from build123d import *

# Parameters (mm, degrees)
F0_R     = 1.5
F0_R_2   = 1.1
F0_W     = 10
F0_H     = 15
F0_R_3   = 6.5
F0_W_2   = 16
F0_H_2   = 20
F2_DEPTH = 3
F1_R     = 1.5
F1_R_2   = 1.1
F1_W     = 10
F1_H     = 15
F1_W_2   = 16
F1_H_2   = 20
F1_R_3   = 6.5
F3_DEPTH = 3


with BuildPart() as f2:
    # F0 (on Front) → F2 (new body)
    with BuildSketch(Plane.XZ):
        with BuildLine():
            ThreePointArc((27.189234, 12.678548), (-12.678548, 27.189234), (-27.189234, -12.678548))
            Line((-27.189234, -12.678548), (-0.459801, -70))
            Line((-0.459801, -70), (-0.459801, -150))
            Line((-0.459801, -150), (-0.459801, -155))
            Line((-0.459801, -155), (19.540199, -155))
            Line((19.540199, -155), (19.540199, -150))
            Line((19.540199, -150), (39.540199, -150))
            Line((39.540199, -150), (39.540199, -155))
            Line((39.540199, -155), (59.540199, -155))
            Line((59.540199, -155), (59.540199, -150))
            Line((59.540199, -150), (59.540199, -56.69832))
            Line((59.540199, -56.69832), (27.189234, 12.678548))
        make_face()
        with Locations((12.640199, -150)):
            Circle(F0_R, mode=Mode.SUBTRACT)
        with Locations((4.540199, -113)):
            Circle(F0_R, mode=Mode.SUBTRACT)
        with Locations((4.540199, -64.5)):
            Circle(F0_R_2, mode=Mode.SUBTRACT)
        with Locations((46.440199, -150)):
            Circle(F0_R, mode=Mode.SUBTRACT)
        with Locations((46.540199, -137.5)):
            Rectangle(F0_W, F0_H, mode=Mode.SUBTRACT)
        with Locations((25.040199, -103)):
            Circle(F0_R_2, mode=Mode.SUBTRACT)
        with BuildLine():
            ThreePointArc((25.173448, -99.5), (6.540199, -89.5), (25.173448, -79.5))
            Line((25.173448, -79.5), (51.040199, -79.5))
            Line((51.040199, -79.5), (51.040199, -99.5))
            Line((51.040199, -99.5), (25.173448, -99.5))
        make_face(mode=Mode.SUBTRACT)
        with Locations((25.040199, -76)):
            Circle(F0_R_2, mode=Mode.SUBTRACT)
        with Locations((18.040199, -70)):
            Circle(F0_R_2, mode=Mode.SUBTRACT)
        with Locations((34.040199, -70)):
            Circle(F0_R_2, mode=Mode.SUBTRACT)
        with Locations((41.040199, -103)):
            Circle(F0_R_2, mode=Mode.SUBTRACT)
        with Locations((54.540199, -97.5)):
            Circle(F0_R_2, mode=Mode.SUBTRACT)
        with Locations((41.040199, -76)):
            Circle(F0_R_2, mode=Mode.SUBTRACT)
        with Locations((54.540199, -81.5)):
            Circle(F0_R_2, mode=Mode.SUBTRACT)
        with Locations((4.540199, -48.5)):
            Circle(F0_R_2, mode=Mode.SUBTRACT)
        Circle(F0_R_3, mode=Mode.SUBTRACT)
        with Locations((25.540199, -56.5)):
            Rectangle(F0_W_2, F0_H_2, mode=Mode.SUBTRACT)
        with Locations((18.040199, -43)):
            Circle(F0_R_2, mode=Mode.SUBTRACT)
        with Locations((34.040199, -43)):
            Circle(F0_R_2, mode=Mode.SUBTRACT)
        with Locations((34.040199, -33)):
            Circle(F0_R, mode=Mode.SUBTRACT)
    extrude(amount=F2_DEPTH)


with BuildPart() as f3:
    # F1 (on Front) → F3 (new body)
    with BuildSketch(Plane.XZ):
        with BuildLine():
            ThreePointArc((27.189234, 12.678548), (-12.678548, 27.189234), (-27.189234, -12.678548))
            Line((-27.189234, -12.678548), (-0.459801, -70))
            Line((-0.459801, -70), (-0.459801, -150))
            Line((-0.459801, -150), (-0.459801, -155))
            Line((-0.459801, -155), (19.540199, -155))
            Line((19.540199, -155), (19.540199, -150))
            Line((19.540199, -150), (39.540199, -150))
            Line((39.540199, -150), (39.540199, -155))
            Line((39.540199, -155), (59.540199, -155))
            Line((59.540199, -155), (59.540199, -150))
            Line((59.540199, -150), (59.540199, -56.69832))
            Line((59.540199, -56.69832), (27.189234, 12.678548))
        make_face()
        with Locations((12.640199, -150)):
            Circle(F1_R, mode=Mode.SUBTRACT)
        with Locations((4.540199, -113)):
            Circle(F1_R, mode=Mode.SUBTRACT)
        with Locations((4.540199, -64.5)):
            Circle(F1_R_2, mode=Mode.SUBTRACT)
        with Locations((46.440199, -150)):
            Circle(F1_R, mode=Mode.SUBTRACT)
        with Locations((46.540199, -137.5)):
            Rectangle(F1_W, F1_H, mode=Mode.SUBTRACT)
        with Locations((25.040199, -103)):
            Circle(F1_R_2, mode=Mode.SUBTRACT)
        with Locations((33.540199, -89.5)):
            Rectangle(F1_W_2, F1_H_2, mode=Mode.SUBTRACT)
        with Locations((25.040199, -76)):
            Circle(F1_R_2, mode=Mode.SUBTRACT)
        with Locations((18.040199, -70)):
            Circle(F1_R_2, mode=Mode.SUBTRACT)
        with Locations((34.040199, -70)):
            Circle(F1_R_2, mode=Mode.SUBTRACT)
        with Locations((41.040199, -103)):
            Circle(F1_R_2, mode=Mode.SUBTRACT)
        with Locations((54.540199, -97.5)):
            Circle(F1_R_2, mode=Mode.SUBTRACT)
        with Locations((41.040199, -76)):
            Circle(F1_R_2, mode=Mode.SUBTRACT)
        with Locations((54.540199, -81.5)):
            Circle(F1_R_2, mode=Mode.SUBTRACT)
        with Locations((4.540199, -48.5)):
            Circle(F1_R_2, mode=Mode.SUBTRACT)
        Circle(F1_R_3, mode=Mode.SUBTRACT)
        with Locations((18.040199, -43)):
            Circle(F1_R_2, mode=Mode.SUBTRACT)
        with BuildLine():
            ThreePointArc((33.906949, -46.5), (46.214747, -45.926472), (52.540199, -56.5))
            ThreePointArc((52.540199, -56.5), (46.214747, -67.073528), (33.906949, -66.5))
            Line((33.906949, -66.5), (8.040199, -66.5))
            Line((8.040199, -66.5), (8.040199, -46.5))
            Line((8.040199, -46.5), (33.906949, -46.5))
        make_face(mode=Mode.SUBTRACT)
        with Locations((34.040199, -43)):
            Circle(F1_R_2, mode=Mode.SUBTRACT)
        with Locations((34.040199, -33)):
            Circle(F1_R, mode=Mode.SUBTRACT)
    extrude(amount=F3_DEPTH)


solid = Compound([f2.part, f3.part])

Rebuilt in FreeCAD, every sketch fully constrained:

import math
import FreeCAD as App
import Part
import Sketcher
from FreeCAD import Vector
Q = App.Units.Quantity


def add_polygon(sketch, points):
    """Adds a closed chain of lines whose ends are joined by coincident constraints."""
    first, n = sketch.GeometryCount, len(points)
    for a, b in zip(points, points[1:] + points[:1]):
        sketch.addGeometry(Part.LineSegment(App.Vector(*a, 0), App.Vector(*b, 0)), False)
    for i in range(n):
        sketch.addConstraint(Sketcher.Constraint("Coincident", first + i, 2, first + (i + 1) % n, 1))

doc = App.newDocument("Part")
body = doc.addObject("PartDesign::Body", "Body")

sketch1 = body.newObject("Sketcher::SketchObject", "Sketch")
sketch1.AttachmentSupport = (doc.getObject("XZ_Plane"), [""])
sketch1.MapMode = "FlatFace"
sketch1.addGeometry(Part.ArcOfCircle(Part.Circle(Vector(0, 0, 0), Vector(0, 0, 1), 30), math.radians(25), math.radians(205)), False)
sketch1.addGeometry(Part.LineSegment(Vector(-27.2, -12.7, 0), Vector(-0.5, -70, 0)), False)
sketch1.addGeometry(Part.LineSegment(Vector(-0.5, -70, 0), Vector(-0.5, -155, 0)), False)
sketch1.addGeometry(Part.LineSegment(Vector(-0.5, -155, 0), Vector(19.5, -155, 0)), False)
sketch1.addGeometry(Part.LineSegment(Vector(19.5, -155, 0), Vector(19.5, -150, 0)), False)
sketch1.addGeometry(Part.LineSegment(Vector(19.5, -150, 0), Vector(39.5, -150, 0)), False)
sketch1.addGeometry(Part.LineSegment(Vector(39.5, -150, 0), Vector(39.5, -155, 0)), False)
sketch1.addGeometry(Part.LineSegment(Vector(39.5, -155, 0), Vector(59.5, -155, 0)), False)
sketch1.addGeometry(Part.LineSegment(Vector(59.5, -155, 0), Vector(59.5, -56.7, 0)), False)
sketch1.addGeometry(Part.LineSegment(Vector(59.5, -56.7, 0), Vector(27.2, 12.7, 0)), False)
sketch1.addGeometry(Part.Circle(Vector(4.5, -113, 0), Vector(0, 0, 1), 1.5), False)
sketch1.addGeometry(Part.Circle(Vector(12.6, -150, 0), Vector(0, 0, 1), 1.5), False)
sketch1.addGeometry(Part.Circle(Vector(46.4, -150, 0), Vector(0, 0, 1), 1.5), False)
add_polygon(sketch1, [(51.5, -145), (41.5, -145), (41.5, -130), (51.5, -130)])
sketch1.addGeometry(Part.Circle(Vector(25, -103, 0), Vector(0, 0, 1), 1.1), False)
sketch1.addGeometry(Part.LineSegment(Vector(51, -99.5, 0), Vector(25.2, -99.5, 0)), False)
sketch1.addGeometry(Part.ArcOfCircle(Part.Circle(Vector(18.5, -89.5, 0), Vector(0, 0, 1), 12), math.radians(56), math.radians(304)), False)
sketch1.addGeometry(Part.LineSegment(Vector(25.2, -79.5, 0), Vector(51, -79.5, 0)), False)
sketch1.addGeometry(Part.LineSegment(Vector(51, -79.5, 0), Vector(51, -99.5, 0)), False)
sketch1.addGeometry(Part.Circle(Vector(25, -76, 0), Vector(0, 0, 1), 1.1), False)
sketch1.addGeometry(Part.Circle(Vector(41, -103, 0), Vector(0, 0, 1), 1.1), False)
sketch1.addGeometry(Part.Circle(Vector(54.5, -97.5, 0), Vector(0, 0, 1), 1.1), False)
sketch1.addGeometry(Part.Circle(Vector(41, -76, 0), Vector(0, 0, 1), 1.1), False)
sketch1.addGeometry(Part.Circle(Vector(54.5, -81.5, 0), Vector(0, 0, 1), 1.1), False)
sketch1.addGeometry(Part.Circle(Vector(4.5, -64.5, 0), Vector(0, 0, 1), 1.1), False)
sketch1.addGeometry(Part.Circle(Vector(4.5, -48.5, 0), Vector(0, 0, 1), 1.1), False)
sketch1.addGeometry(Part.Circle(Vector(18, -70, 0), Vector(0, 0, 1), 1.1), False)
sketch1.addGeometry(Part.Circle(Vector(18, -43, 0), Vector(0, 0, 1), 1.1), False)
sketch1.addGeometry(Part.Circle(Vector(0, 0, 0), Vector(0, 0, 1), 6.5), False)
add_polygon(sketch1, [(33.5, -66.5), (17.5, -66.5), (17.5, -46.5), (33.5, -46.5)])
sketch1.addGeometry(Part.Circle(Vector(34, -70, 0), Vector(0, 0, 1), 1.1), False)
sketch1.addGeometry(Part.Circle(Vector(34, -43, 0), Vector(0, 0, 1), 1.1), False)
sketch1.addGeometry(Part.Circle(Vector(34, -33, 0), Vector(0, 0, 1), 1.5), False)
sketch1.addConstraint([
    Sketcher.Constraint("Tangent", 0, 2, 1, 1),
    Sketcher.Constraint("Coincident", 1, 2, 2, 1),
    Sketcher.Constraint("Coincident", 2, 2, 3, 1),
    Sketcher.Constraint("Coincident", 3, 2, 4, 1),
    Sketcher.Constraint("Coincident", 4, 2, 5, 1),
    Sketcher.Constraint("Coincident", 5, 2, 6, 1),
    Sketcher.Constraint("Coincident", 6, 2, 7, 1),
    Sketcher.Constraint("Coincident", 7, 2, 8, 1),
    Sketcher.Constraint("Coincident", 8, 2, 9, 1),
    Sketcher.Constraint("Tangent", 9, 2, 0, 1),
    Sketcher.Constraint("Coincident", 18, 2, 19, 2),
    Sketcher.Constraint("Coincident", 19, 1, 20, 1),
    Sketcher.Constraint("Coincident", 20, 2, 21, 1),
    Sketcher.Constraint("Coincident", 21, 2, 18, 1),
    Sketcher.Constraint("Vertical", 2),
    Sketcher.Constraint("Horizontal", 3),
    Sketcher.Constraint("Vertical", 4),
    Sketcher.Constraint("Horizontal", 5),
    Sketcher.Constraint("Vertical", 6),
    Sketcher.Constraint("Horizontal", 7),
    Sketcher.Constraint("Vertical", 8),
    Sketcher.Constraint("Horizontal", 13),
    Sketcher.Constraint("Vertical", 14),
    Sketcher.Constraint("Horizontal", 15),
    Sketcher.Constraint("Vertical", 16),
    Sketcher.Constraint("Horizontal", 18),
    Sketcher.Constraint("Horizontal", 20),
    Sketcher.Constraint("Vertical", 21),
    Sketcher.Constraint("Horizontal", 32),
    Sketcher.Constraint("Vertical", 33),
    Sketcher.Constraint("Horizontal", 34),
    Sketcher.Constraint("Vertical", 35),
    Sketcher.Constraint("Coincident", 0, 3, -1, 1),
    Sketcher.Constraint("Coincident", 31, 3, -1, 1),
    Sketcher.Constraint("Equal", 10, 11),
    Sketcher.Constraint("Equal", 11, 12),
    Sketcher.Constraint("Equal", 17, 22),
    Sketcher.Constraint("Equal", 22, 23),
    Sketcher.Constraint("Equal", 23, 24),
    Sketcher.Constraint("Equal", 24, 25),
    Sketcher.Constraint("Equal", 25, 26),
    Sketcher.Constraint("Equal", 26, 27),
    Sketcher.Constraint("Equal", 27, 28),
    Sketcher.Constraint("Equal", 28, 29),
    Sketcher.Constraint("Equal", 29, 30),
    Sketcher.Constraint("Equal", 30, 36),
    Sketcher.Constraint("Equal", 36, 37),
    Sketcher.Constraint("Equal", 12, 38),
    Sketcher.Constraint("Parallel", 1, 9),
    Sketcher.Constraint("Horizontal", 11, 3, 12, 3),
    Sketcher.Constraint("Horizontal", 17, 3, 23, 3),
    Sketcher.Constraint("Horizontal", 22, 3, 25, 3),
    Sketcher.Constraint("Horizontal", 29, 3, 36, 3),
    Sketcher.Constraint("Horizontal", 30, 3, 37, 3),
    Sketcher.Constraint("Horizontal", 36, 3, 1, 2),
    Sketcher.Constraint("Horizontal", 12, 3, 4, 2),
    Sketcher.Constraint("Horizontal", 3, 2, 6, 2),
    Sketcher.Constraint("Vertical", 17, 3, 22, 3),
    Sketcher.Constraint("Vertical", 23, 3, 25, 3),
    Sketcher.Constraint("Vertical", 24, 3, 26, 3),
    Sketcher.Constraint("Vertical", 10, 3, 27, 3),
    Sketcher.Constraint("Vertical", 27, 3, 28, 3),
    Sketcher.Constraint("Vertical", 29, 3, 30, 3),
    Sketcher.Constraint("Vertical", 36, 3, 37, 3),
    Sketcher.Constraint("Vertical", 37, 3, 38, 3),
    Sketcher.Constraint("Vertical", 18, 2, 19, 1),
    Sketcher.Constraint("Equal", 3, 5),
    Sketcher.Constraint("Equal", 5, 7),
    Sketcher.Constraint("Equal", 7, 21),
    Sketcher.Constraint("Equal", 21, 33),
    Sketcher.Constraint("Diameter", 10, Q("3 mm")),
    Sketcher.Constraint("Diameter", 31, Q("13 mm")),
    Sketcher.Constraint("Radius", 0, Q("30 mm")),
    Sketcher.Constraint("Radius", 19, Q("12 mm")),
    Sketcher.Constraint("Diameter", 17, Q("2.2 mm")),
    Sketcher.Constraint("DistanceX", 3, 1, 3, 2, Q("20 mm")),
    Sketcher.Constraint("DistanceX", 13, 2, 13, 1, Q("10 mm")),
    Sketcher.Constraint("DistanceX", 32, 2, 32, 1, Q("16 mm")),
    Sketcher.Constraint("DistanceY", 2, 2, 2, 1, Q("85 mm")),
    Sketcher.Constraint("DistanceY", 4, 1, 4, 2, Q("5 mm")),
    Sketcher.Constraint("DistanceY", 14, 1, 14, 2, Q("15 mm")),
    Sketcher.Constraint("Angle", 1, Q("-64.999999 deg")),
    Sketcher.Constraint("DistanceY", 10, 3, -1, 1, Q("113 mm")),
    Sketcher.Constraint("DistanceY", 11, 3, -1, 1, Q("150 mm")),
    Sketcher.Constraint("DistanceY", 17, 3, -1, 1, Q("103 mm")),
    Sketcher.Constraint("DistanceY", 22, 3, -1, 1, Q("76 mm")),
    Sketcher.Constraint("DistanceY", 30, 3, -1, 1, Q("43 mm")),
    Sketcher.Constraint("DistanceY", 38, 3, -1, 1, Q("33 mm")),
    Sketcher.Constraint("DistanceY", 13, 2, -1, 1, Q("145 mm")),
    Sketcher.Constraint("DistanceX", 10, 3, 19, 3, Q("14 mm")),
    Sketcher.Constraint("DistanceX", 17, 3, 23, 3, Q("16 mm")),
    Sketcher.Constraint("DistanceX", 19, 3, 24, 3, Q("36 mm")),
    Sketcher.Constraint("DistanceY", 24, 3, 19, 3, Q("8 mm")),
    Sketcher.Constraint("DistanceY", 24, 3, 26, 3, Q("16 mm")),
    Sketcher.Constraint("DistanceY", 19, 3, 27, 3, Q("25 mm")),
    Sketcher.Constraint("DistanceY", 27, 3, 28, 3, Q("16 mm")),
    Sketcher.Constraint("DistanceX", 29, 3, 22, 3, Q("7 mm")),
    Sketcher.Constraint("DistanceX", 36, 3, 25, 3, Q("7 mm")),
    Sketcher.Constraint("DistanceX", 1, 2, 27, 3, Q("5 mm")),
    Sketcher.Constraint("DistanceX", 5, 2, 13, 2, Q("2 mm")),
    Sketcher.Constraint("DistanceX", 25, 3, 20, 2, Q("10 mm")),
    Sketcher.Constraint("DistanceX", 27, 3, 32, 2, Q("13 mm")),
    Sketcher.Constraint("DistanceY", 32, 2, 27, 3, Q("2 mm")),
    Sketcher.Constraint("DistanceY", 19, 3, -1, 1, Q("89.5 mm")),
    Sketcher.Constraint("DistanceX", 10, 3, 11, 3, Q("8.1 mm")),
    Sketcher.Constraint("DistanceX", 11, 3, 12, 3, Q("33.8 mm")),
    Sketcher.Constraint("DistanceX", 10, 3, 17, 3, Q("20.5 mm")),
])
pad1 = body.newObject("PartDesign::Pad", "Pad")
pad1.Profile = sketch1
pad1.Length = 3
body2 = doc.addObject("PartDesign::Body", "Body001")

sketch2 = body2.newObject("Sketcher::SketchObject", "Sketch001")
sketch2.AttachmentSupport = (doc.getObject("XZ_Plane001"), [""])
sketch2.MapMode = "FlatFace"
sketch2.addGeometry(Part.ArcOfCircle(Part.Circle(Vector(0, 0, 0), Vector(0, 0, 1), 30), math.radians(25), math.radians(205)), False)
sketch2.addGeometry(Part.LineSegment(Vector(-27.2, -12.7, 0), Vector(-0.5, -70, 0)), False)
sketch2.addGeometry(Part.LineSegment(Vector(-0.5, -70, 0), Vector(-0.5, -155, 0)), False)
sketch2.addGeometry(Part.LineSegment(Vector(-0.5, -155, 0), Vector(19.5, -155, 0)), False)
sketch2.addGeometry(Part.LineSegment(Vector(19.5, -155, 0), Vector(19.5, -150, 0)), False)
sketch2.addGeometry(Part.LineSegment(Vector(19.5, -150, 0), Vector(39.5, -150, 0)), False)
sketch2.addGeometry(Part.LineSegment(Vector(39.5, -150, 0), Vector(39.5, -155, 0)), False)
sketch2.addGeometry(Part.LineSegment(Vector(39.5, -155, 0), Vector(59.5, -155, 0)), False)
sketch2.addGeometry(Part.LineSegment(Vector(59.5, -155, 0), Vector(59.5, -56.7, 0)), False)
sketch2.addGeometry(Part.LineSegment(Vector(59.5, -56.7, 0), Vector(27.2, 12.7, 0)), False)
sketch2.addGeometry(Part.Circle(Vector(4.5, -113, 0), Vector(0, 0, 1), 1.5), False)
sketch2.addGeometry(Part.Circle(Vector(12.6, -150, 0), Vector(0, 0, 1), 1.5), False)
sketch2.addGeometry(Part.Circle(Vector(46.4, -150, 0), Vector(0, 0, 1), 1.5), False)
add_polygon(sketch2, [(51.5, -145), (41.5, -145), (41.5, -130), (51.5, -130)])
sketch2.addGeometry(Part.Circle(Vector(25, -103, 0), Vector(0, 0, 1), 1.1), False)
sketch2.addGeometry(Part.Circle(Vector(25, -76, 0), Vector(0, 0, 1), 1.1), False)
add_polygon(sketch2, [(41.5, -99.5), (25.5, -99.5), (25.5, -79.5), (41.5, -79.5)])
sketch2.addGeometry(Part.Circle(Vector(41, -103, 0), Vector(0, 0, 1), 1.1), False)
sketch2.addGeometry(Part.Circle(Vector(54.5, -97.5, 0), Vector(0, 0, 1), 1.1), False)
sketch2.addGeometry(Part.Circle(Vector(41, -76, 0), Vector(0, 0, 1), 1.1), False)
sketch2.addGeometry(Part.Circle(Vector(54.5, -81.5, 0), Vector(0, 0, 1), 1.1), False)
sketch2.addGeometry(Part.Circle(Vector(4.5, -64.5, 0), Vector(0, 0, 1), 1.1), False)
sketch2.addGeometry(Part.Circle(Vector(4.5, -48.5, 0), Vector(0, 0, 1), 1.1), False)
sketch2.addGeometry(Part.Circle(Vector(18, -70, 0), Vector(0, 0, 1), 1.1), False)
sketch2.addGeometry(Part.Circle(Vector(18, -43, 0), Vector(0, 0, 1), 1.1), False)
sketch2.addGeometry(Part.Circle(Vector(0, 0, 0), Vector(0, 0, 1), 6.5), False)
sketch2.addGeometry(Part.LineSegment(Vector(8, -46.5, 0), Vector(33.9, -46.5, 0)), False)
sketch2.addGeometry(Part.ArcOfCircle(Part.Circle(Vector(40.5, -56.5, 0), Vector(0, 0, 1), 12), math.radians(0), math.radians(124)), False)
sketch2.addGeometry(Part.ArcOfCircle(Part.Circle(Vector(40.5, -56.5, 0), Vector(0, 0, 1), 12), math.radians(-124), math.radians(0)), False)
sketch2.addGeometry(Part.LineSegment(Vector(33.9, -66.5, 0), Vector(8, -66.5, 0)), False)
sketch2.addGeometry(Part.LineSegment(Vector(8, -66.5, 0), Vector(8, -46.5, 0)), False)
sketch2.addGeometry(Part.Circle(Vector(34, -70, 0), Vector(0, 0, 1), 1.1), False)
sketch2.addGeometry(Part.Circle(Vector(34, -43, 0), Vector(0, 0, 1), 1.1), False)
sketch2.addGeometry(Part.Circle(Vector(34, -33, 0), Vector(0, 0, 1), 1.5), False)
sketch2.addConstraint([
    Sketcher.Constraint("Tangent", 0, 2, 1, 1),
    Sketcher.Constraint("Coincident", 1, 2, 2, 1),
    Sketcher.Constraint("Coincident", 2, 2, 3, 1),
    Sketcher.Constraint("Coincident", 3, 2, 4, 1),
    Sketcher.Constraint("Coincident", 4, 2, 5, 1),
    Sketcher.Constraint("Coincident", 5, 2, 6, 1),
    Sketcher.Constraint("Coincident", 6, 2, 7, 1),
    Sketcher.Constraint("Coincident", 7, 2, 8, 1),
    Sketcher.Constraint("Coincident", 8, 2, 9, 1),
    Sketcher.Constraint("Tangent", 9, 2, 0, 1),
    Sketcher.Constraint("Coincident", 32, 2, 33, 2),
    Sketcher.Constraint("Tangent", 33, 1, 34, 2),
    Sketcher.Constraint("Coincident", 34, 1, 35, 1),
    Sketcher.Constraint("Coincident", 35, 2, 36, 1),
    Sketcher.Constraint("Coincident", 36, 2, 32, 1),
    Sketcher.Constraint("Vertical", 2),
    Sketcher.Constraint("Horizontal", 3),
    Sketcher.Constraint("Vertical", 4),
    Sketcher.Constraint("Horizontal", 5),
    Sketcher.Constraint("Vertical", 6),
    Sketcher.Constraint("Horizontal", 7),
    Sketcher.Constraint("Vertical", 8),
    Sketcher.Constraint("Horizontal", 13),
    Sketcher.Constraint("Vertical", 14),
    Sketcher.Constraint("Horizontal", 15),
    Sketcher.Constraint("Vertical", 16),
    Sketcher.Constraint("Horizontal", 19),
    Sketcher.Constraint("Vertical", 20),
    Sketcher.Constraint("Horizontal", 21),
    Sketcher.Constraint("Vertical", 22),
    Sketcher.Constraint("Horizontal", 32),
    Sketcher.Constraint("Horizontal", 35),
    Sketcher.Constraint("Vertical", 36),
    Sketcher.Constraint("Coincident", 0, 3, -1, 1),
    Sketcher.Constraint("Coincident", 31, 3, -1, 1),
    Sketcher.Constraint("Equal", 10, 11),
    Sketcher.Constraint("Equal", 11, 12),
    Sketcher.Constraint("Equal", 17, 18),
    Sketcher.Constraint("Equal", 18, 23),
    Sketcher.Constraint("Equal", 23, 24),
    Sketcher.Constraint("Equal", 24, 25),
    Sketcher.Constraint("Equal", 25, 26),
    Sketcher.Constraint("Equal", 26, 27),
    Sketcher.Constraint("Equal", 27, 28),
    Sketcher.Constraint("Equal", 28, 29),
    Sketcher.Constraint("Equal", 29, 30),
    Sketcher.Constraint("Equal", 33, 34),
    Sketcher.Constraint("Equal", 30, 37),
    Sketcher.Constraint("Equal", 37, 38),
    Sketcher.Constraint("Equal", 12, 39),
    Sketcher.Constraint("Parallel", 1, 9),
    Sketcher.Constraint("Horizontal", 11, 3, 12, 3),
    Sketcher.Constraint("Horizontal", 17, 3, 23, 3),
    Sketcher.Constraint("Horizontal", 18, 3, 25, 3),
    Sketcher.Constraint("Horizontal", 29, 3, 37, 3),
    Sketcher.Constraint("Horizontal", 30, 3, 38, 3),
    Sketcher.Constraint("Horizontal", 37, 3, 1, 2),
    Sketcher.Constraint("Horizontal", 12, 3, 4, 2),
    Sketcher.Constraint("Horizontal", 3, 2, 6, 2),
    Sketcher.Constraint("Horizontal", 34, 3, 33, 1),
    Sketcher.Constraint("Vertical", 17, 3, 18, 3),
    Sketcher.Constraint("Vertical", 23, 3, 25, 3),
    Sketcher.Constraint("Vertical", 24, 3, 26, 3),
    Sketcher.Constraint("Vertical", 10, 3, 27, 3),
    Sketcher.Constraint("Vertical", 27, 3, 28, 3),
    Sketcher.Constraint("Vertical", 29, 3, 30, 3),
    Sketcher.Constraint("Vertical", 37, 3, 38, 3),
    Sketcher.Constraint("Vertical", 38, 3, 39, 3),
    Sketcher.Constraint("Vertical", 14, 2, 21, 2),
    Sketcher.Constraint("Vertical", 32, 2, 34, 1),
    Sketcher.Constraint("Equal", 3, 5),
    Sketcher.Constraint("Equal", 5, 7),
    Sketcher.Constraint("Equal", 7, 20),
    Sketcher.Constraint("Equal", 22, 36),
    Sketcher.Constraint("Diameter", 10, Q("3 mm")),
    Sketcher.Constraint("Diameter", 31, Q("13 mm")),
    Sketcher.Constraint("Radius", 0, Q("30 mm")),
    Sketcher.Constraint("Radius", 33, Q("12.000001 mm")),
    Sketcher.Constraint("Diameter", 17, Q("2.2 mm")),
    Sketcher.Constraint("DistanceX", 3, 1, 3, 2, Q("20 mm")),
    Sketcher.Constraint("DistanceX", 13, 2, 13, 1, Q("10 mm")),
    Sketcher.Constraint("DistanceX", 19, 2, 19, 1, Q("16 mm")),
    Sketcher.Constraint("DistanceY", 2, 2, 2, 1, Q("85 mm")),
    Sketcher.Constraint("DistanceY", 4, 1, 4, 2, Q("5 mm")),
    Sketcher.Constraint("DistanceY", 14, 1, 14, 2, Q("15 mm")),
    Sketcher.Constraint("Angle", 1, Q("-64.999999 deg")),
    Sketcher.Constraint("DistanceY", 10, 3, -1, 1, Q("113 mm")),
    Sketcher.Constraint("DistanceY", 11, 3, -1, 1, Q("150 mm")),
    Sketcher.Constraint("DistanceY", 17, 3, -1, 1, Q("103 mm")),
    Sketcher.Constraint("DistanceY", 18, 3, -1, 1, Q("76 mm")),
    Sketcher.Constraint("DistanceY", 30, 3, -1, 1, Q("43 mm")),
    Sketcher.Constraint("DistanceY", 39, 3, -1, 1, Q("33 mm")),
    Sketcher.Constraint("DistanceY", 13, 2, -1, 1, Q("145 mm")),
    Sketcher.Constraint("DistanceX", 17, 3, 23, 3, Q("16 mm")),
    Sketcher.Constraint("DistanceX", 10, 3, 24, 3, Q("50 mm")),
    Sketcher.Constraint("DistanceY", 24, 3, 26, 3, Q("16 mm")),
    Sketcher.Constraint("DistanceY", 26, 3, 27, 3, Q("17 mm")),
    Sketcher.Constraint("DistanceY", 27, 3, 28, 3, Q("16 mm")),
    Sketcher.Constraint("DistanceX", 29, 3, 18, 3, Q("7 mm")),
    Sketcher.Constraint("DistanceX", 33, 3, 26, 3, Q("14.000001 mm")),
    Sketcher.Constraint("DistanceY", 26, 3, 33, 3, Q("24.999999 mm")),
    Sketcher.Constraint("DistanceX", 37, 3, 25, 3, Q("7 mm")),
    Sketcher.Constraint("DistanceX", 1, 2, 27, 3, Q("5 mm")),
    Sketcher.Constraint("DistanceX", 5, 2, 13, 2, Q("2 mm")),
    Sketcher.Constraint("DistanceY", 26, 3, 21, 2, Q("2 mm")),
    Sketcher.Constraint("DistanceX", 35, 2, 29, 3, Q("10 mm")),
    Sketcher.Constraint("DistanceY", 24, 3, -1, 1, Q("97.5 mm")),
    Sketcher.Constraint("DistanceX", 10, 3, 11, 3, Q("8.1 mm")),
    Sketcher.Constraint("DistanceX", 11, 3, 12, 3, Q("33.8 mm")),
    Sketcher.Constraint("DistanceX", 10, 3, 17, 3, Q("20.5 mm")),
])
pad2 = body2.newObject("PartDesign::Pad", "Pad001")
pad2.Profile = sketch2
pad2.Length = 3

doc.recompute()
